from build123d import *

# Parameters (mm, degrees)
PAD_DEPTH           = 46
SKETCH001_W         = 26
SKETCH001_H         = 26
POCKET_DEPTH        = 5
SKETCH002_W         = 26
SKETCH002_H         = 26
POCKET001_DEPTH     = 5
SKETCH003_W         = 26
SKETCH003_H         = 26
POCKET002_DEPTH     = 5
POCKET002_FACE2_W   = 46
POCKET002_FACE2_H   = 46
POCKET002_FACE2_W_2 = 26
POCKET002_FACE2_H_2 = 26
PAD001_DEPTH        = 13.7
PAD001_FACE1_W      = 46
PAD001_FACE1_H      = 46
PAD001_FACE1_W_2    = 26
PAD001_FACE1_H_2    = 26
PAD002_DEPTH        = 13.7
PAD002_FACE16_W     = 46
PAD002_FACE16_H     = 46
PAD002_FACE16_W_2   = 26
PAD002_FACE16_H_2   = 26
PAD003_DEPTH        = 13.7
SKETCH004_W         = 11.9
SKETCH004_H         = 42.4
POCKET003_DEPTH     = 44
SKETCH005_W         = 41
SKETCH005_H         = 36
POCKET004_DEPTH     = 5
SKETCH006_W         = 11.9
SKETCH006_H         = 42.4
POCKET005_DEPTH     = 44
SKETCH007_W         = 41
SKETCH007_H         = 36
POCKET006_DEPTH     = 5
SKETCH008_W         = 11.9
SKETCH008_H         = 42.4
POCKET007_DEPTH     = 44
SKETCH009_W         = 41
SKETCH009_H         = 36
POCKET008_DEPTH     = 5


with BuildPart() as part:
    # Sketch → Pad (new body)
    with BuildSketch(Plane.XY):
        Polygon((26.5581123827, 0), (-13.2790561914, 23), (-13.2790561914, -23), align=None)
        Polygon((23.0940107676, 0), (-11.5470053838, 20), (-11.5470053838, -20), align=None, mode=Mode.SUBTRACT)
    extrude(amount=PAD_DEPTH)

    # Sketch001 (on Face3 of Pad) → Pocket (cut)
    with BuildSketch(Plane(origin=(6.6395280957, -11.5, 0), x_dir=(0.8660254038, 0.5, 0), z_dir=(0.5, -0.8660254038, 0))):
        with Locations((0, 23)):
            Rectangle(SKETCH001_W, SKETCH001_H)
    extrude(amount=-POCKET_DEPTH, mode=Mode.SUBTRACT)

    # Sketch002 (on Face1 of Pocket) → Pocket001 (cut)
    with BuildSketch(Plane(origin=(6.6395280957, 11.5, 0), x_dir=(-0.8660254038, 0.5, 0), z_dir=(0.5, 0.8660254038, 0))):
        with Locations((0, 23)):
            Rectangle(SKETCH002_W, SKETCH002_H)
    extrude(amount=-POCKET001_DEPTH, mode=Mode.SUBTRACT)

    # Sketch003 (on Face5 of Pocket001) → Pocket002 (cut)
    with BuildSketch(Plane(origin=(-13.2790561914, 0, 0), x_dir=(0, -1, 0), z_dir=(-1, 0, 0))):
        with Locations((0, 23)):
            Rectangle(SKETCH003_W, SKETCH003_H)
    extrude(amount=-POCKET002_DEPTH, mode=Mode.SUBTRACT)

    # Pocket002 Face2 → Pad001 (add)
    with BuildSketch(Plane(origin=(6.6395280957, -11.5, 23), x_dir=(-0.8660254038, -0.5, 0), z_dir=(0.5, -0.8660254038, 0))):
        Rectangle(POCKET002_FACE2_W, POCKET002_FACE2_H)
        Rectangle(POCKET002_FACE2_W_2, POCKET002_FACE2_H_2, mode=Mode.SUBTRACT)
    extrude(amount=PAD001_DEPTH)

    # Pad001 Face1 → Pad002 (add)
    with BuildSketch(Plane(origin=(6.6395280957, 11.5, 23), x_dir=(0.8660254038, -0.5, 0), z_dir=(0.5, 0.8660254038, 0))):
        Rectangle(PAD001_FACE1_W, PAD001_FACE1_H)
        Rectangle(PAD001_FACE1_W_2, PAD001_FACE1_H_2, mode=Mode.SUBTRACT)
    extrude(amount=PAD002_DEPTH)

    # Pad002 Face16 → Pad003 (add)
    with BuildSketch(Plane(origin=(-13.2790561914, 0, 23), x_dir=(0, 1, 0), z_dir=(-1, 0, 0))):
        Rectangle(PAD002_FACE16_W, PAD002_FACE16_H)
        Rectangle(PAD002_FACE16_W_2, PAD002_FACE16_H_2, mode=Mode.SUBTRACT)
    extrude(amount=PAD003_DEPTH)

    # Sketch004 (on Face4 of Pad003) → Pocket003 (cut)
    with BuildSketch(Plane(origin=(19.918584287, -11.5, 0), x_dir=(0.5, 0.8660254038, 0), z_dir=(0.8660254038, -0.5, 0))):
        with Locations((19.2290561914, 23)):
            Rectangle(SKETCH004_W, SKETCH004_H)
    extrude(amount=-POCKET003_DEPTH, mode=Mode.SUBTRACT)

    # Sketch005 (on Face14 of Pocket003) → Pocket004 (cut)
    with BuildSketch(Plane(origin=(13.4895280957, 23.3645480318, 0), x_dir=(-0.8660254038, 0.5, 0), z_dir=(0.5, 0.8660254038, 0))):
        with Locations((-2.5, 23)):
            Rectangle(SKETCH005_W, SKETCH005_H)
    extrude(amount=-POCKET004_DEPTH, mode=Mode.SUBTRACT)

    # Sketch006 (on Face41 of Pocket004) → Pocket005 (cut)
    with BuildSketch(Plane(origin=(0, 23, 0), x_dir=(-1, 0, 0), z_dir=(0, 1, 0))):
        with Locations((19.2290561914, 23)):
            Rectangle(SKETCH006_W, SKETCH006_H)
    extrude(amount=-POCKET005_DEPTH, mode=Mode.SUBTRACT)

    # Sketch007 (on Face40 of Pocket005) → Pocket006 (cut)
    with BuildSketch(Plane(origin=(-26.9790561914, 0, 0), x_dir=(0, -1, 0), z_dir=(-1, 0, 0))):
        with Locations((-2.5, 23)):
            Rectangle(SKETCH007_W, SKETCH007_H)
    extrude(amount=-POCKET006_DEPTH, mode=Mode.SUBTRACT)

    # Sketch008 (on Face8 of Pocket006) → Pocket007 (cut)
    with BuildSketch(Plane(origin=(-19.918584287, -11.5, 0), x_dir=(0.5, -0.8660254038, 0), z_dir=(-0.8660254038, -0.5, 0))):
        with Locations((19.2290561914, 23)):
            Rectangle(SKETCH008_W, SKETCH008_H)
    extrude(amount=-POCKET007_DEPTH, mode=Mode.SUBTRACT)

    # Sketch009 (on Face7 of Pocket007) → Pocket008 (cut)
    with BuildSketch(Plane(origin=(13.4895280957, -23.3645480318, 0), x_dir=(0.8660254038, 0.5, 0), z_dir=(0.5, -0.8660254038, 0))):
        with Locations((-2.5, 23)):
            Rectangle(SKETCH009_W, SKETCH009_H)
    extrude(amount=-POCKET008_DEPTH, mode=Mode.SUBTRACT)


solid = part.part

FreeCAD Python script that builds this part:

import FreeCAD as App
import Part
import Sketcher
Q = App.Units.Quantity


def add_polygon(sketch, points):
    """Adds a closed chain of lines whose ends are joined by coincident constraints."""
    first, n = sketch.GeometryCount, len(points)
    for a, b in zip(points, points[1:] + points[:1]):
        sketch.addGeometry(Part.LineSegment(App.Vector(*a, 0), App.Vector(*b, 0)), False)
    for i in range(n):
        sketch.addConstraint(Sketcher.Constraint("Coincident", first + i, 2, first + (i + 1) % n, 1))

doc = App.newDocument("Part")
params = doc.addObject("Spreadsheet::Sheet", "Params")
for row, (alias, value) in enumerate([
    ("sketch1_height", "46 mm"),
    ("sketch1_height2", "40 mm"),
    ("pad1_length", "46 mm"),
    ("sketch2_width", "26 mm"),
    ("pocket1_length", "5 mm"),
    ("sketch3_width", "26 mm"),
    ("pocket2_length", "5 mm"),
    ("sketch4_width", "26 mm"),
    ("pocket3_length", "5 mm"),
    ("sketch5_width", "46 mm"),
    ("sketch5_width2", "26 mm"),
    ("pad2_length", "13.7 mm"),
    ("sketch6_width", "46 mm"),
    ("sketch6_width2", "26 mm"),
    ("pad3_length", "13.7 mm"),
    ("sketch7_width", "46 mm"),
    ("sketch7_width2", "26 mm"),
    ("pad4_length", "13.7 mm"),
    ("sketch8_width", "11.9 mm"),
    ("sketch8_height", "42.4 mm"),
    ("pocket4_length", "44 mm"),
    ("sketch9_width", "41 mm"),
    ("sketch9_height", "36 mm"),
    ("pocket5_length", "5 mm"),
    ("sketch10_width", "11.9 mm"),
    ("sketch10_height", "42.4 mm"),
    ("pocket6_length", "44 mm"),
    ("sketch11_width", "41 mm"),
    ("sketch11_height", "36 mm"),
    ("pocket7_length", "5 mm"),
    ("sketch12_width", "11.9 mm"),
    ("sketch12_height", "42.4 mm"),
    ("pocket8_length", "44 mm"),
    ("sketch13_width", "41 mm"),
    ("sketch13_height", "36 mm"),
    ("pocket9_length", "5 mm"),
], start=1):
    params.set(f"A{row}", alias)
    params.set(f"B{row}", "=" + value)
    params.setAlias(f"B{row}", alias)

body = doc.addObject("PartDesign::Body", "Body")

# Sketch on XY plane
sketch1 = body.newObject("Sketcher::SketchObject", "Sketch")
sketch1.AttachmentSupport = (doc.getObject("XY_Plane"), [""])
sketch1.MapMode = "FlatFace"
add_polygon(sketch1, [(27, 0), (-13, 23), (-13, -23)])  # lines 0-2
add_polygon(sketch1, [(-12, 20), (23, 0), (-12, -20)])  # lines 3-5
sketch1.addConstraint([
    Sketcher.Constraint("Vertical", 1),
    Sketcher.Constraint("Vertical", 5),
    Sketcher.Constraint("PointOnObject", 2, 2, -1),
    Sketcher.Constraint("PointOnObject", 3, 2, -1),
    Sketcher.Constraint("Parallel", 0, 3),
    Sketcher.Constraint("Parallel", 2, 4),
    Sketcher.Constraint("Equal", 0, 2),
    Sketcher.Constraint("DistanceY", 1, 2, 1, 1, Q("46 mm")),
    Sketcher.Constraint("DistanceY", 5, 1, 5, 2, Q("40 mm")),
    Sketcher.Constraint("Angle", 0, Q("150 deg")),
    Sketcher.Constraint("DistanceX", 3, 2, 2, 2, Q("3.464102 mm")),
    Sketcher.Constraint("DistanceX", -1, 1, 3, 2, Q("23.094011 mm")),
])
sketch1.setExpression("Constraints[13]", "Params.sketch1_height")
sketch1.setExpression("Constraints[14]", "Params.sketch1_height2")
pad1 = body.newObject("PartDesign::Pad", "Pad")
pad1.Profile = sketch1
pad1.setExpression("Length", "Params.pad1_length")

# Sketch on an angled plane
sketch2 = body.newObject("Sketcher::SketchObject", "Sketch001")
sketch2.Placement = App.Placement(App.Vector(6.639528, -11.5, 0), App.Rotation(App.Vector(0.866025404, 0.5, 0), App.Vector(0, 0, 1), App.Vector(0.5, -0.866025404, 0), "ZXY"))
add_polygon(sketch2, [(-13, 36), (-13, 10), (13, 10), (13, 36)])  # lines 0-3
sketch2.addConstraint([
    Sketcher.Constraint("Vertical", 0),
    Sketcher.Constraint("Horizontal", 1),
    Sketcher.Constraint("Vertical", 2),
    Sketcher.Constraint("Horizontal", 3),
    Sketcher.Constraint("Equal", 3, 0),
    Sketcher.Constraint("DistanceX", 1, 1, 1, 2, Q("26 mm")),
    Sketcher.Constraint("DistanceX", 0, 2, -1, 1, Q("13 mm")),
    Sketcher.Constraint("DistanceY", -1, 1, 0, 2, Q("10 mm")),
])
sketch2.setExpression("Constraints[9]", "Params.sketch2_width")
pocket1 = body.newObject("PartDesign::Pocket", "Pocket")
pocket1.Profile = sketch2
pocket1.setExpression("Length", "Params.pocket1_length")

# Sketch on an angled plane
sketch3 = body.newObject("Sketcher::SketchObject", "Sketch002")
sketch3.Placement = App.Placement(App.Vector(6.639528, 11.5, 0), App.Rotation(App.Vector(-0.866025404, 0.5, 0), App.Vector(0, 0, 1), App.Vector(0.5, 0.866025404, 0), "ZXY"))
add_polygon(sketch3, [(-13, 36), (-13, 10), (13, 10), (13, 36)])  # lines 0-3
sketch3.addConstraint([
    Sketcher.Constraint("Vertical", 0),
    Sketcher.Constraint("Horizontal", 1),
    Sketcher.Constraint("Vertical", 2),
    Sketcher.Constraint("Horizontal", 3),
    Sketcher.Constraint("Equal", 3, 0),
    Sketcher.Constraint("DistanceX", 1, 1, 1, 2, Q("26 mm")),
    Sketcher.Constraint("DistanceX", 0, 2, -1, 1, Q("13 mm")),
    Sketcher.Constraint("DistanceY", -1, 1, 0, 2, Q("10 mm")),
])
sketch3.setExpression("Constraints[9]", "Params.sketch3_width")
pocket2 = body.newObject("PartDesign::Pocket", "Pocket001")
pocket2.Profile = sketch3
pocket2.setExpression("Length", "Params.pocket2_length")

# Sketch on YZ plane
sketch4 = body.newObject("Sketcher::SketchObject", "Sketch003")
sketch4.AttachmentSupport = (doc.getObject("YZ_Plane"), [""])
sketch4.MapMode = "FlatFace"
sketch4.AttachmentOffset = App.Placement(App.Vector(0, 0, -13.279056), App.Rotation())
add_polygon(sketch4, [(13, 36), (13, 10), (-13, 10), (-13, 36)])  # lines 0-3
sketch4.addConstraint([
    Sketcher.Constraint("Vertical", 0),
    Sketcher.Constraint("Horizontal", 1),
    Sketcher.Constraint("Vertical", 2),
    Sketcher.Constraint("Horizontal", 3),
    Sketcher.Constraint("Equal", 3, 0),
    Sketcher.Constraint("DistanceX", 1, 2, 1, 1, Q("26 mm")),
    Sketcher.Constraint("DistanceX", -1, 1, 0, 2, Q("13 mm")),
    Sketcher.Constraint("DistanceY", -1, 1, 0, 2, Q("10 mm")),
])
sketch4.setExpression("Constraints[9]", "Params.sketch4_width")
pocket3 = body.newObject("PartDesign::Pocket", "Pocket002")
pocket3.Profile = sketch4
pocket3.setExpression("Length", "Params.pocket3_length")
pocket3.Reversed = True

# Sketch on an angled plane
sketch5 = body.newObject("Sketcher::SketchObject", "Sketch004")
sketch5.Placement = App.Placement(App.Vector(6.639528, -11.5, 23), App.Rotation(App.Vector(-0.866025404, -0.5, 0), App.Vector(0, 0, -1), App.Vector(0.5, -0.866025404, 0), "ZXY"))
add_polygon(sketch5, [(-23, 23), (-23, -23), (23, -23), (23, 23)])  # lines 0-3
add_polygon(sketch5, [(13, -13), (-13, -13), (-13, 13), (13, 13)])  # lines 4-7
sketch5.addConstraint([
    Sketcher.Constraint("Vertical", 0),
    Sketcher.Constraint("Horizontal", 1),
    Sketcher.Constraint("Vertical", 2),
    Sketcher.Constraint("Horizontal", 3),
    Sketcher.Constraint("Horizontal", 4),
    Sketcher.Constraint("Vertical", 5),
    Sketcher.Constraint("Horizontal", 6),
    Sketcher.Constraint("Vertical", 7),
    Sketcher.Constraint("Symmetric", 0, 2, 2, 2, -1, 1),
    Sketcher.Constraint("Symmetric", 4, 2, 6, 2, -1, 1),
    Sketcher.Constraint("Equal", 3, 0),
    Sketcher.Constraint("Equal", 6, 5),
    Sketcher.Constraint("DistanceX", 1, 1, 1, 2, Q("46 mm")),
    Sketcher.Constraint("DistanceX", 4, 2, 4, 1, Q("26 mm")),
])
sketch5.setExpression("Constraints[20]", "Params.sketch5_width")
sketch5.setExpression("Constraints[21]", "Params.sketch5_width2")
pad2 = body.newObject("PartDesign::Pad", "Pad001")
pad2.Profile = sketch5
pad2.setExpression("Length", "Params.pad2_length")

# Sketch on an angled plane
sketch6 = body.newObject("Sketcher::SketchObject", "Sketch005")
sketch6.Placement = App.Placement(App.Vector(6.639528, 11.5, 23), App.Rotation(App.Vector(0.866025404, -0.5, 0), App.Vector(0, 0, -1), App.Vector(0.5, 0.866025404, 0), "ZXY"))
add_polygon(sketch6, [(-23, 23), (-23, -23), (23, -23), (23, 23)])  # lines 0-3
add_polygon(sketch6, [(13, -13), (-13, -13), (-13, 13), (13, 13)])  # lines 4-7
sketch6.addConstraint([
    Sketcher.Constraint("Vertical", 0),
    Sketcher.Constraint("Horizontal", 1),
    Sketcher.Constraint("Vertical", 2),
    Sketcher.Constraint("Horizontal", 3),
    Sketcher.Constraint("Horizontal", 4),
    Sketcher.Constraint("Vertical", 5),
    Sketcher.Constraint("Horizontal", 6),
    Sketcher.Constraint("Vertical", 7),
    Sketcher.Constraint("Symmetric", 0, 2, 2, 2, -1, 1),
    Sketcher.Constraint("Symmetric", 4, 2, 6, 2, -1, 1),
    Sketcher.Constraint("Equal", 3, 0),
    Sketcher.Constraint("Equal", 6, 5),
    Sketcher.Constraint("DistanceX", 1, 1, 1, 2, Q("46 mm")),
    Sketcher.Constraint("DistanceX", 4, 2, 4, 1, Q("26 mm")),
])
sketch6.setExpression("Constraints[20]", "Params.sketch6_width")
sketch6.setExpression("Constraints[21]", "Params.sketch6_width2")
pad3 = body.newObject("PartDesign::Pad", "Pad002")
pad3.Profile = sketch6
pad3.setExpression("Length", "Params.pad3_length")

# Sketch on YZ plane
sketch7 = body.newObject("Sketcher::SketchObject", "Sketch006")
sketch7.AttachmentSupport = (doc.getObject("YZ_Plane"), [""])
sketch7.MapMode = "FlatFace"
sketch7.AttachmentOffset = App.Placement(App.Vector(0, 0, -13.279056), App.Rotation())
add_polygon(sketch7, [(-23, 0), (-23, 46), (23, 46), (23, 0)])  # lines 0-3
add_polygon(sketch7, [(13, 36), (-13, 36), (-13, 10), (13, 10)])  # lines 4-7
sketch7.addConstraint([
    Sketcher.Constraint("Vertical", 0),
    Sketcher.Constraint("Horizontal", 1),
    Sketcher.Constraint("Vertical", 2),
    Sketcher.Constraint("Horizontal", 3),
    Sketcher.Constraint("Horizontal", 4),
    Sketcher.Constraint("Vertical", 5),
    Sketcher.Constraint("Horizontal", 6),
    Sketcher.Constraint("Vertical", 7),
    Sketcher.Constraint("Symmetric", 2, 2, 3, 2, -1, 1),
    Sketcher.Constraint("Equal", 3, 0),
    Sketcher.Constraint("Equal", 6, 5),
    Sketcher.Constraint("DistanceX", 1, 1, 1, 2, Q("46 mm")),
    Sketcher.Constraint("DistanceX", 4, 2, 4, 1, Q("26 mm")),
    Sketcher.Constraint("DistanceX", 4, 2, -1, 1, Q("13 mm")),
    Sketcher.Constraint("DistanceY", -1, 1, 4, 2, Q("36 mm")),
])
sketch7.setExpression("Constraints[19]", "Params.sketch7_width")
sketch7.setExpression("Constraints[20]", "Params.sketch7_width2")
pad4 = body.newObject("PartDesign::Pad", "Pad003")
pad4.Profile = sketch7
pad4.setExpression("Length", "Params.pad4_length")
pad4.Reversed = True

# Sketch on an angled plane
sketch8 = body.newObject("Sketcher::SketchObject", "Sketch007")
sketch8.Placement = App.Placement(App.Vector(19.918584, -11.5, 0), App.Rotation(App.Vector(0.5, 0.866025404, 0), App.Vector(0, 0, 1), App.Vector(0.866025404, -0.5, 0), "ZXY"))
add_polygon(sketch8, [(13, 44), (13, 2), (25, 2), (25, 44)])  # lines 0-3
sketch8.addConstraint([
    Sketcher.Constraint("Vertical", 0),
    Sketcher.Constraint("Horizontal", 1),
    Sketcher.Constraint("Vertical", 2),
    Sketcher.Constraint("Horizontal", 3),
    Sketcher.Constraint("DistanceX", 1, 1, 1, 2, Q("11.9 mm")),
    Sketcher.Constraint("DistanceY", 0, 2, 0, 1, Q("42.4 mm")),
    Sketcher.Constraint("DistanceY", -1, 1, 0, 2, Q("1.8 mm")),
    Sketcher.Constraint("DistanceX", -1, 1, 0, 2, Q("13.279056 mm")),
])
sketch8.setExpression("Constraints[8]", "Params.sketch8_width")
sketch8.setExpression("Constraints[9]", "Params.sketch8_height")
pocket4 = body.newObject("PartDesign::Pocket", "Pocket003")
pocket4.Profile = sketch8
pocket4.setExpression("Length", "Params.pocket4_length")

# Sketch on an angled plane
sketch9 = body.newObject("Sketcher::SketchObject", "Sketch008")
sketch9.Placement = App.Placement(App.Vector(13.489528, 23.364548, 0), App.Rotation(App.Vector(-0.866025404, 0.5, 0), App.Vector(0, 0, 1), App.Vector(0.5, 0.866025404, 0), "ZXY"))
add_polygon(sketch9, [(-23, 41), (-23, 5), (18, 5), (18, 41)])  # lines 0-3
sketch9.addConstraint([
    Sketcher.Constraint("Vertical", 0),
    Sketcher.Constraint("Horizontal", 1),
    Sketcher.Constraint("Vertical", 2),
    Sketcher.Constraint("Horizontal", 3),
    Sketcher.Constraint("DistanceX", 1, 1, 1, 2, Q("41 mm")),
    Sketcher.Constraint("DistanceY", 0, 2, 0, 1, Q("36 mm")),
    Sketcher.Constraint("DistanceX", 0, 2, -1, 1, Q("23 mm")),
    Sketcher.Constraint("DistanceY", -1, 1, 0, 2, Q("5 mm")),
])
sketch9.setExpression("Constraints[8]", "Params.sketch9_width")
sketch9.setExpression("Constraints[9]", "Params.sketch9_height")
pocket5 = body.newObject("PartDesign::Pocket", "Pocket004")
pocket5.Profile = sketch9
pocket5.setExpression("Length", "Params.pocket5_length")

# Sketch on XZ plane
sketch10 = body.newObject("Sketcher::SketchObject", "Sketch009")
sketch10.AttachmentSupport = (doc.getObject("XZ_Plane"), [""])
sketch10.MapMode = "FlatFace"
sketch10.AttachmentOffset = App.Placement(App.Vector(0, 0, -23), App.Rotation())
add_polygon(sketch10, [(-13, 44), (-13, 2), (-25, 2), (-25, 44)])  # lines 0-3
sketch10.addConstraint([
    Sketcher.Constraint("Vertical", 0),
    Sketcher.Constraint("Horizontal", 1),
    Sketcher.Constraint("Vertical", 2),
    Sketcher.Constraint("Horizontal", 3),
    Sketcher.Constraint("DistanceX", 1, 2, 1, 1, Q("11.9 mm")),
    Sketcher.Constraint("DistanceY", 0, 2, 0, 1, Q("42.4 mm")),
    Sketcher.Constraint("DistanceY", -1, 1, 0, 2, Q("1.8 mm")),
    Sketcher.Constraint("DistanceX", 0, 2, -1, 1, Q("13.279056 mm")),
])
sketch10.setExpression("Constraints[8]", "Params.sketch10_width")
sketch10.setExpression("Constraints[9]", "Params.sketch10_height")
pocket6 = body.newObject("PartDesign::Pocket", "Pocket005")
pocket6.Profile = sketch10
pocket6.setExpression("Length", "Params.pocket6_length")
pocket6.Reversed = True

# Sketch on YZ plane
sketch11 = body.newObject("Sketcher::SketchObject", "Sketch010")
sketch11.AttachmentSupport = (doc.getObject("YZ_Plane"), [""])
sketch11.MapMode = "FlatFace"
sketch11.AttachmentOffset = App.Placement(App.Vector(0, 0, -26.979056), App.Rotation())
add_polygon(sketch11, [(23, 41), (23, 5), (-18, 5), (-18, 41)])  # lines 0-3
sketch11.addConstraint([
    Sketcher.Constraint("Vertical", 0),
    Sketcher.Constraint("Horizontal", 1),
    Sketcher.Constraint("Vertical", 2),
    Sketcher.Constraint("Horizontal", 3),
    Sketcher.Constraint("DistanceX", 1, 2, 1, 1, Q("41 mm")),
    Sketcher.Constraint("DistanceY", 0, 2, 0, 1, Q("36 mm")),
    Sketcher.Constraint("DistanceX", -1, 1, 0, 2, Q("23 mm")),
    Sketcher.Constraint("DistanceY", -1, 1, 0, 2, Q("5 mm")),
])
sketch11.setExpression("Constraints[8]", "Params.sketch11_width")
sketch11.setExpression("Constraints[9]", "Params.sketch11_height")
pocket7 = body.newObject("PartDesign::Pocket", "Pocket006")
pocket7.Profile = sketch11
pocket7.setExpression("Length", "Params.pocket7_length")
pocket7.Reversed = True

# Sketch on an angled plane
sketch12 = body.newObject("Sketcher::SketchObject", "Sketch011")
sketch12.Placement = App.Placement(App.Vector(-19.918584, -11.5, 0), App.Rotation(App.Vector(0.5, -0.866025404, 0), App.Vector(0, 0, 1), App.Vector(-0.866025404, -0.5, 0), "ZXY"))
add_polygon(sketch12, [(13, 44), (13, 2), (25, 2), (25, 44)])  # lines 0-3
sketch12.addConstraint([
    Sketcher.Constraint("Vertical", 0),
    Sketcher.Constraint("Horizontal", 1),
    Sketcher.Constraint("Vertical", 2),
    Sketcher.Constraint("Horizontal", 3),
    Sketcher.Constraint("DistanceX", 1, 1, 1, 2, Q("11.9 mm")),
    Sketcher.Constraint("DistanceY", 0, 2, 0, 1, Q("42.4 mm")),
    Sketcher.Constraint("DistanceY", -1, 1, 0, 2, Q("1.8 mm")),
    Sketcher.Constraint("DistanceX", -1, 1, 0, 2, Q("13.279056 mm")),
])
sketch12.setExpression("Constraints[8]", "Params.sketch12_width")
sketch12.setExpression("Constraints[9]", "Params.sketch12_height")
pocket8 = body.newObject("PartDesign::Pocket", "Pocket007")
pocket8.Profile = sketch12
pocket8.setExpression("Length", "Params.pocket8_length")

# Sketch on an angled plane
sketch13 = body.newObject("Sketcher::SketchObject", "Sketch012")
sketch13.Placement = App.Placement(App.Vector(13.489528, -23.364548, 0), App.Rotation(App.Vector(0.866025404, 0.5, 0), App.Vector(0, 0, 1), App.Vector(0.5, -0.866025404, 0), "ZXY"))
add_polygon(sketch13, [(-23, 41), (-23, 5), (18, 5), (18, 41)])  # lines 0-3
sketch13.addConstraint([
    Sketcher.Constraint("Vertical", 0),
    Sketcher.Constraint("Horizontal", 1),
    Sketcher.Constraint("Vertical", 2),
    Sketcher.Constraint("Horizontal", 3),
    Sketcher.Constraint("DistanceX", 1, 1, 1, 2, Q("41 mm")),
    Sketcher.Constraint("DistanceY", 0, 2, 0, 1, Q("36 mm")),
    Sketcher.Constraint("DistanceX", 0, 2, -1, 1, Q("23 mm")),
    Sketcher.Constraint("DistanceY", -1, 1, 0, 2, Q("5 mm")),
])
sketch13.setExpression("Constraints[8]", "Params.sketch13_width")
sketch13.setExpression("Constraints[9]", "Params.sketch13_height")
pocket9 = body.newObject("PartDesign::Pocket", "Pocket008")
pocket9.Profile = sketch13
pocket9.setExpression("Length", "Params.pocket9_length")

doc.recompute()
